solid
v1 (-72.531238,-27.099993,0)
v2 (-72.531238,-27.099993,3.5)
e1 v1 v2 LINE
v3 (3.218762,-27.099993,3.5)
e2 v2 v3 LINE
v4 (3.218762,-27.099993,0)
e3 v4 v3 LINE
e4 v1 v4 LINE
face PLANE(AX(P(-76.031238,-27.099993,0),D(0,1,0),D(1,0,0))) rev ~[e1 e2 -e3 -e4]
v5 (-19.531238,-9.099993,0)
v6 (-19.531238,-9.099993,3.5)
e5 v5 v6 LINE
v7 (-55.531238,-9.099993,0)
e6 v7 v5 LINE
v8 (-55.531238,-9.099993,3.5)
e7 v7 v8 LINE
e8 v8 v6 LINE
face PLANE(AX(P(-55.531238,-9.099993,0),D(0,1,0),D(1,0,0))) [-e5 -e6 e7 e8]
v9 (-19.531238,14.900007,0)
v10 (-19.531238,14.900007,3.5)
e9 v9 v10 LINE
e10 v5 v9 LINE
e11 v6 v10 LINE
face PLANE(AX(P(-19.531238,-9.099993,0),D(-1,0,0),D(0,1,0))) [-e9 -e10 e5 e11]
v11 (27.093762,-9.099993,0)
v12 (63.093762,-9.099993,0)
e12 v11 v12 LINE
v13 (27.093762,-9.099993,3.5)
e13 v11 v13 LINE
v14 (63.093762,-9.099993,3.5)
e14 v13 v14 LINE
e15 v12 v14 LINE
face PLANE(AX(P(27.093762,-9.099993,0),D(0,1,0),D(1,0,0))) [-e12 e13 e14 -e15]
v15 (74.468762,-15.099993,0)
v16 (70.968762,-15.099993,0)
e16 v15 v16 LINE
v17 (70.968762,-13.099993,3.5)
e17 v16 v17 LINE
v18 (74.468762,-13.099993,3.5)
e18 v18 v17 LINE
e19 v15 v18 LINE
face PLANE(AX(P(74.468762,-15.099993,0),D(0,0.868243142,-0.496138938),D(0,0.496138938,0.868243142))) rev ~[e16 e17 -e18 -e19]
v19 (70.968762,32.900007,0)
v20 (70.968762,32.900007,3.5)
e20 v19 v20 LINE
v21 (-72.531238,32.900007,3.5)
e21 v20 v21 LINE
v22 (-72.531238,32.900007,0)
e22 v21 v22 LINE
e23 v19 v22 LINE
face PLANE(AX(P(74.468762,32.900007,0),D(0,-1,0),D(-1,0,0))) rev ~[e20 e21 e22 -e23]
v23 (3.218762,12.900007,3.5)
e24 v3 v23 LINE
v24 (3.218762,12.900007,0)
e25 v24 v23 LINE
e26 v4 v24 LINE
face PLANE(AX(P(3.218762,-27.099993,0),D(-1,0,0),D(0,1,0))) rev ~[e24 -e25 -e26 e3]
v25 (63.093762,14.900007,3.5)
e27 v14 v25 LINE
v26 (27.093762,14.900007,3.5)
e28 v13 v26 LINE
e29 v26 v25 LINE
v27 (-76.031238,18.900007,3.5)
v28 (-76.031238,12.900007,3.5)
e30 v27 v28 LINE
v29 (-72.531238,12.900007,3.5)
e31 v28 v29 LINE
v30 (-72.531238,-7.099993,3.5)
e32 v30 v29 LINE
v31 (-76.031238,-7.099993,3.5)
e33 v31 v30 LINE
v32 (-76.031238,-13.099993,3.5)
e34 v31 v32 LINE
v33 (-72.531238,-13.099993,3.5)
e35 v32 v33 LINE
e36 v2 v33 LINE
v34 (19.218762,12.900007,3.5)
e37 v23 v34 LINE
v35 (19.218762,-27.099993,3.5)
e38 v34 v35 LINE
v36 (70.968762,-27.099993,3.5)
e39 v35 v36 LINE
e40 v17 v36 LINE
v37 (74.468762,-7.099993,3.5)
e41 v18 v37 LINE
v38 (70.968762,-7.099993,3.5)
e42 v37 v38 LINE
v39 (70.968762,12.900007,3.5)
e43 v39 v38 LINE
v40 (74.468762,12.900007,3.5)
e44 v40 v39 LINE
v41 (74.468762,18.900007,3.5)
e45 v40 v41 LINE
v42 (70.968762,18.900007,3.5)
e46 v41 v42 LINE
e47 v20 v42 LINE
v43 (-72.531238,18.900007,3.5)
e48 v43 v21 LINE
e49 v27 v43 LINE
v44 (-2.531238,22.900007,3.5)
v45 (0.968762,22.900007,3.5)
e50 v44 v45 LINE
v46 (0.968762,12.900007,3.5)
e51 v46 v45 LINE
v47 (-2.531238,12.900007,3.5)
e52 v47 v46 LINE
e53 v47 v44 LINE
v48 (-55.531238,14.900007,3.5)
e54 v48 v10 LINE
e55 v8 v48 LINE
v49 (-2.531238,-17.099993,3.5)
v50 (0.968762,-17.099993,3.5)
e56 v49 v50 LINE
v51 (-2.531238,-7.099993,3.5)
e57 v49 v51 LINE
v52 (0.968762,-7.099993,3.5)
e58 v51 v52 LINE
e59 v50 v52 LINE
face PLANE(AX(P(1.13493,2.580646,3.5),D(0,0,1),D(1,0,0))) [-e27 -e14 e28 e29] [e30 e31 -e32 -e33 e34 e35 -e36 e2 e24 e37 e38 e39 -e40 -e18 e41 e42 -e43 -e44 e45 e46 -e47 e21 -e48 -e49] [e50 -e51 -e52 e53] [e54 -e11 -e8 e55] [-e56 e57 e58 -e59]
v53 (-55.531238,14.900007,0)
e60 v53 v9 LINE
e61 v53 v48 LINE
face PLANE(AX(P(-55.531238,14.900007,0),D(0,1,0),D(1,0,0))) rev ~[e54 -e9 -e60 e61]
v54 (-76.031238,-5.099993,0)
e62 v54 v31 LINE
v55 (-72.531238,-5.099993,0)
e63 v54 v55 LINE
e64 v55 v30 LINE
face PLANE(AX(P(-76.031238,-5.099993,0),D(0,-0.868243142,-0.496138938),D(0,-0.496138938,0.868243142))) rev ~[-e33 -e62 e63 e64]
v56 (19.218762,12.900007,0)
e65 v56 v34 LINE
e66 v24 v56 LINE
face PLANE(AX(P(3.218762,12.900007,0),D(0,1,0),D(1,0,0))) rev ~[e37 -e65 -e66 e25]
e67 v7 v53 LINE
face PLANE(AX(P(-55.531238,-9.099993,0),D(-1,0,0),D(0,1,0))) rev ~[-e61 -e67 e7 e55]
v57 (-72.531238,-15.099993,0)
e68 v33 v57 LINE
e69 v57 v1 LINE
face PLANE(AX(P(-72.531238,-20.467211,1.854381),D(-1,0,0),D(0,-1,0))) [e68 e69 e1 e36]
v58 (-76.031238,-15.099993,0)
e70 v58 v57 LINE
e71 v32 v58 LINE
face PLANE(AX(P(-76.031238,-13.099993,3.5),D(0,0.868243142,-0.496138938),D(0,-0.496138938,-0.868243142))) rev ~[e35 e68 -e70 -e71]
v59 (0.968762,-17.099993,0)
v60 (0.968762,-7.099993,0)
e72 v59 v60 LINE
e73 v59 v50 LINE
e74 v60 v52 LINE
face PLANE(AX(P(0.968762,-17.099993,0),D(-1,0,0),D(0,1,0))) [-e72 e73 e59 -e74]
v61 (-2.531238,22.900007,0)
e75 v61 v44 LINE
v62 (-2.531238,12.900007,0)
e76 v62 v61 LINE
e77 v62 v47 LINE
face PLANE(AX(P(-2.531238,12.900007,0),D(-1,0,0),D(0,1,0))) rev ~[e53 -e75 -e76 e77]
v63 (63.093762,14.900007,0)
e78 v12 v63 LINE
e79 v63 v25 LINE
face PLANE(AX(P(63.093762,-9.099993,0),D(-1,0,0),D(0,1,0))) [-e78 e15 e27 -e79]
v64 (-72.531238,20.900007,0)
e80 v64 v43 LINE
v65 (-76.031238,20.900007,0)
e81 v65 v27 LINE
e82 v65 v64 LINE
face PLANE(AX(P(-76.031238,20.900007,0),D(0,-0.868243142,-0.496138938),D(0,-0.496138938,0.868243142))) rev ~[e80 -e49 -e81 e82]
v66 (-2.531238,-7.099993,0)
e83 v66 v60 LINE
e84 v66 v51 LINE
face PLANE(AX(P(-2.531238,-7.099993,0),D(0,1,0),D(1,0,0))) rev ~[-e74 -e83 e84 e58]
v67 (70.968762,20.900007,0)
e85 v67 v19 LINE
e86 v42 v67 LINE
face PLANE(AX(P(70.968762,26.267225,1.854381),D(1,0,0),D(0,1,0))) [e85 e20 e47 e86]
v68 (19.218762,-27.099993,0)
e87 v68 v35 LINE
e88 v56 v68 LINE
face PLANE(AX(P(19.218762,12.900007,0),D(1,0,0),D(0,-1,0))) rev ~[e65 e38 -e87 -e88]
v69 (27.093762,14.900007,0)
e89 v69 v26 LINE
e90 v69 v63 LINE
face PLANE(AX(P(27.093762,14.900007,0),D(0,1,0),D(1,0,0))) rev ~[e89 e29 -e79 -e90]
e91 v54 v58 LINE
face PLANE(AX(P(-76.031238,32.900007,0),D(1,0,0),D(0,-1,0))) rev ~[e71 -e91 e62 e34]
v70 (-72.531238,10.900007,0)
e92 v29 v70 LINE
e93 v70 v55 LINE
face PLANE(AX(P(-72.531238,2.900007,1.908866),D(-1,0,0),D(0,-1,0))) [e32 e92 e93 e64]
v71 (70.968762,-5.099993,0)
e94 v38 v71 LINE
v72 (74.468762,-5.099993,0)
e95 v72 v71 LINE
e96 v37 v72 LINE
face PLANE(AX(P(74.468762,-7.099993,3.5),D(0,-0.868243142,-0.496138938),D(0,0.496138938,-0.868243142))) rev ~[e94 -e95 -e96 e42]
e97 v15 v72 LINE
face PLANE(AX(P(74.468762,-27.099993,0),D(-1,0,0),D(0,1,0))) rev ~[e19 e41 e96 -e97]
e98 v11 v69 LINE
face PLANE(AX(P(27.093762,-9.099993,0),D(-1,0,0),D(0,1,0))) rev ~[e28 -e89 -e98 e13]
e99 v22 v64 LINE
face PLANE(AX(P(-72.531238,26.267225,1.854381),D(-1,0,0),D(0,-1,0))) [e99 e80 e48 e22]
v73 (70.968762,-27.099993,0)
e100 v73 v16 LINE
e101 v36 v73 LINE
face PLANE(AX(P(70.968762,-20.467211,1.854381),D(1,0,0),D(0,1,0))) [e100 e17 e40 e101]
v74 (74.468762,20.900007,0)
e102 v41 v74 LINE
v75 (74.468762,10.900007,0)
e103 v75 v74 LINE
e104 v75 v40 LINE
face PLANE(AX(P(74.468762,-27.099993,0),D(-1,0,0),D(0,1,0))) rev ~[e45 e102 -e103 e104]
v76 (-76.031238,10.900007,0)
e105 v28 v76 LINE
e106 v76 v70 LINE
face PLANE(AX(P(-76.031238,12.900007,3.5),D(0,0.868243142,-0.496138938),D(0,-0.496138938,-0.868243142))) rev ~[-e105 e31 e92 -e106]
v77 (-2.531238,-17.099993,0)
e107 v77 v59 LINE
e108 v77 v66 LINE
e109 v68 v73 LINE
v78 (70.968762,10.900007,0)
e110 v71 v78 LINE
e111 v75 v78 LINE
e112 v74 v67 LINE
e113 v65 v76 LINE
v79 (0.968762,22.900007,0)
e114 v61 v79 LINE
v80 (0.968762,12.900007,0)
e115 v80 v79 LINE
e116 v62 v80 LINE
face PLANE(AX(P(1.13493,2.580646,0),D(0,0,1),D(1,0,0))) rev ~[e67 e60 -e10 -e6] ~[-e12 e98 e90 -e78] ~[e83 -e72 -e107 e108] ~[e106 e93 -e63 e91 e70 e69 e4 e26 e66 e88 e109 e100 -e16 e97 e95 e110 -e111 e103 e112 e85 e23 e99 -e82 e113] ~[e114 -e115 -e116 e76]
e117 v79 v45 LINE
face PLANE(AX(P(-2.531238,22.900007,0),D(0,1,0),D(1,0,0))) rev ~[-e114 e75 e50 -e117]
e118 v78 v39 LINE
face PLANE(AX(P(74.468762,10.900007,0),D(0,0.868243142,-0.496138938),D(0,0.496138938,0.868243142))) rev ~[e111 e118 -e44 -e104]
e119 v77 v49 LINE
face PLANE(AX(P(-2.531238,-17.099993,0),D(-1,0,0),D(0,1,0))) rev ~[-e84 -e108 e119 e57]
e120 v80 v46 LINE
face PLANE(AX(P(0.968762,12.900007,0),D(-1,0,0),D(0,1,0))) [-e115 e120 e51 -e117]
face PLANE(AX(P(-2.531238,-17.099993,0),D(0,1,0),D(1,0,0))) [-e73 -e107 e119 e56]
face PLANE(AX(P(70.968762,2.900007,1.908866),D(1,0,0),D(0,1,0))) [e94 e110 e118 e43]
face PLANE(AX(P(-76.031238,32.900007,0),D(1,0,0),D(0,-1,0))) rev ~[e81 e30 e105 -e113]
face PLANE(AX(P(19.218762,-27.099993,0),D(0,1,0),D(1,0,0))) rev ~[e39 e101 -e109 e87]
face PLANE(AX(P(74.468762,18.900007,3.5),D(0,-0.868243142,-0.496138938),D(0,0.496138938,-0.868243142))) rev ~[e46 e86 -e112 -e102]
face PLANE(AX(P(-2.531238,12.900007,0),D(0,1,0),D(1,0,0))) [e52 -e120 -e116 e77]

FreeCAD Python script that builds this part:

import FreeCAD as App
import Part
import Sketcher

V = App.Vector


def add_polygon(sketch, points):
    """Adds a closed chain of lines whose ends are joined by coincident constraints."""
    first, n = sketch.GeometryCount, len(points)
    for a, b in zip(points, points[1:] + points[:1]):
        sketch.addGeometry(Part.LineSegment(App.Vector(*a, 0), App.Vector(*b, 0)), False)
    for i in range(n):
        sketch.addConstraint(Sketcher.Constraint("Coincident", first + i, 2, first + (i + 1) % n, 1))

doc = App.newDocument("Part")
params = doc.addObject("Spreadsheet::Sheet", "Params")
for row, (alias, value) in enumerate([
    ("sketch1_width", "16 mm"),
    ("sketch1_width2", "36 mm"),
    ("sketch1_height", "40 mm"),
    ("sketch1_height2", "60 mm"),
    ("sketch1_height3", "10 mm"),
    ("pad1_length", "3.5 mm"),
    ("sketch2_width", "12 mm"),
    ("sketch2_width2", "14 mm"),
    ("sketch2_width3", "16 mm"),
    ("sketch2_height", "3.5 mm"),
    ("pocket1_length", "3.5 mm"),
    ("sketch3_width", "14 mm"),
    ("sketch3_width2", "12 mm"),
    ("sketch3_width3", "20 mm"),
    ("sketch3_height", "3.5 mm"),
    ("pocket2_length", "3.5 mm"),
], start=1):
    params.set(f"A{row}", alias)
    params.set(f"B{row}", "=" + value)
    params.setAlias(f"B{row}", alias)

body = doc.addObject("PartDesign::Body", "Body")

sketch1 = body.newObject("Sketcher::SketchObject", "Sketch")
sketch1.AttachmentSupport = (doc.getObject("XY_Plane"), [""])
sketch1.MapMode = "FlatFace"
add_polygon(sketch1, [(19.2, 12.9), (19.2, -27.1), (74.5, -27.1), (74.5, 32.9), (-76, 32.9), (-76, -27.1), (3.2, -27.1), (3.2, 12.9)])
add_polygon(sketch1, [(1, -17.1), (-2.5, -17.1), (-2.5, -7.1), (1, -7.1)])
add_polygon(sketch1, [(-19.5, -9.1), (-55.5, -9.1), (-55.5, 14.9), (-19.5, 14.9)])
add_polygon(sketch1, [(1, 12.9), (-2.5, 12.9), (-2.5, 22.9), (1, 22.9)])
add_polygon(sketch1, [(63.1, -9.1), (27.1, -9.1), (27.1, 14.9), (63.1, 14.9)])
sketch1.addConstraint(Sketcher.Constraint("Vertical", 0))
sketch1.addConstraint(Sketcher.Constraint("Horizontal", 1))
sketch1.addConstraint(Sketcher.Constraint("Vertical", 2))
sketch1.addConstraint(Sketcher.Constraint("Horizontal", 3))
sketch1.addConstraint(Sketcher.Constraint("Vertical", 4))
sketch1.addConstraint(Sketcher.Constraint("Horizontal", 5))
sketch1.addConstraint(Sketcher.Constraint("Vertical", 6))
sketch1.addConstraint(Sketcher.Constraint("Horizontal", 7))
sketch1.addConstraint(Sketcher.Constraint("Horizontal", 8))
sketch1.addConstraint(Sketcher.Constraint("Vertical", 9))
sketch1.addConstraint(Sketcher.Constraint("Horizontal", 10))
sketch1.addConstraint(Sketcher.Constraint("Vertical", 11))
sketch1.addConstraint(Sketcher.Constraint("Horizontal", 12))
sketch1.addConstraint(Sketcher.Constraint("Vertical", 13))
sketch1.addConstraint(Sketcher.Constraint("Horizontal", 14))
sketch1.addConstraint(Sketcher.Constraint("Vertical", 15))
sketch1.addConstraint(Sketcher.Constraint("Horizontal", 16))
sketch1.addConstraint(Sketcher.Constraint("Vertical", 17))
sketch1.addConstraint(Sketcher.Constraint("Horizontal", 18))
sketch1.addConstraint(Sketcher.Constraint("Vertical", 19))
sketch1.addConstraint(Sketcher.Constraint("Horizontal", 20))
sketch1.addConstraint(Sketcher.Constraint("Vertical", 21))
sketch1.addConstraint(Sketcher.Constraint("Horizontal", 22))
sketch1.addConstraint(Sketcher.Constraint("Vertical", 23))
sketch1.addConstraint(Sketcher.Constraint("Horizontal", 1, 2, 4, 2))
sketch1.addConstraint(Sketcher.Constraint("Horizontal", 7, 2, 16, 2))
sketch1.addConstraint(Sketcher.Constraint("Horizontal", 15, 2, 20, 2))
sketch1.addConstraint(Sketcher.Constraint("Horizontal", 14, 2, 21, 2))
sketch1.addConstraint(Sketcher.Constraint("Vertical", 9, 2, 16, 2))
sketch1.addConstraint(Sketcher.Constraint("Vertical", 11, 2, 18, 2))
sketch1.addConstraint(Sketcher.Constraint("Equal", 14, 20))
sketch1.addConstraint(Sketcher.Constraint("Equal", 11, 17))
sketch1.addConstraint(Sketcher.Constraint("DistanceX", 7, 1, 7, 2, 16.0))
sketch1.addConstraint(Sketcher.Constraint("DistanceX", 12, 2, 12, 1, 36.0))
sketch1.addConstraint(Sketcher.Constraint("DistanceY", 0, 2, 0, 1, 40.0))
sketch1.addConstraint(Sketcher.Constraint("DistanceY", 2, 1, 2, 2, 60.0))
sketch1.addConstraint(Sketcher.Constraint("DistanceY", 9, 1, 9, 2, 10.0))
sketch1.addConstraint(Sketcher.Constraint("DistanceY", 13, 1, 13, 2, 24.0))
sketch1.addConstraint(Sketcher.Constraint("DistanceX", 3, 2, 3, 1, 150.5))
sketch1.addConstraint(Sketcher.Constraint("DistanceX", 8, 2, 8, 1, 3.5))
sketch1.addConstraint(Sketcher.Constraint("DistanceY", 5, 2, 8, 2, 10.0))
sketch1.addConstraint(Sketcher.Constraint("DistanceY", 4, 2, 12, 2, 18.0))
sketch1.addConstraint(Sketcher.Constraint("DistanceX", 12, 2, 9, 2, 53.0))
sketch1.addConstraint(Sketcher.Constraint("DistanceX", 1, 1, 1, 2, 55.25))
sketch1.addConstraint(Sketcher.Constraint("DistanceX", 4, 2, 8, 2, 73.5))
sketch1.addConstraint(Sketcher.Constraint("DistanceX", 0, 2, 20, 2, 7.875))
sketch1.addConstraint(Sketcher.Constraint("DistanceX", -1, 1, 1, 2, 74.468762))
sketch1.addConstraint(Sketcher.Constraint("DistanceY", 0, 2, -1, 1, 27.099993))
sketch1.setExpression("Constraints[56]", "Params.sketch1_width")
sketch1.setExpression("Constraints[57]", "Params.sketch1_width2")
sketch1.setExpression("Constraints[58]", "Params.sketch1_height")
sketch1.setExpression("Constraints[59]", "Params.sketch1_height2")
sketch1.setExpression("Constraints[60]", "Params.sketch1_height3")
pad1 = body.newObject("PartDesign::Pad", "Pad")
pad1.Profile = sketch1
pad1.setExpression("Length", "Params.pad1_length")

sketch2 = body.newObject("Sketcher::SketchObject", "Sketch001")
sketch2.AttachmentSupport = (doc.getObject("YZ_Plane"), [""])
sketch2.MapMode = "FlatFace"
sketch2.AttachmentOffset = App.Placement(V(0, 0, 74.468762), App.Rotation())
add_polygon(sketch2, [(-27.1, 3.5), (-27.1, 0), (-15.1, 0), (-13.1, 3.5)])
add_polygon(sketch2, [(-7.1, 3.5), (-5.1, 0), (10.9, 0), (12.9, 3.5)])
add_polygon(sketch2, [(18.9, 3.5), (20.9, 0), (32.9, 0), (32.9, 3.5)])
sketch2.addConstraint(Sketcher.Constraint("Vertical", 0))
sketch2.addConstraint(Sketcher.Constraint("Horizontal", 1))
sketch2.addConstraint(Sketcher.Constraint("Horizontal", 3))
sketch2.addConstraint(Sketcher.Constraint("Horizontal", 5))
sketch2.addConstraint(Sketcher.Constraint("Horizontal", 7))
sketch2.addConstraint(Sketcher.Constraint("Horizontal", 9))
sketch2.addConstraint(Sketcher.Constraint("Vertical", 10))
sketch2.addConstraint(Sketcher.Constraint("Horizontal", 11))
sketch2.addConstraint(Sketcher.Constraint("PointOnObject", 0, 2, -1))
sketch2.addConstraint(Sketcher.Constraint("PointOnObject", 4, 2, -1))
sketch2.addConstraint(Sketcher.Constraint("PointOnObject", 8, 2, -1))
sketch2.addConstraint(Sketcher.Constraint("Parallel", 2, 6))
sketch2.addConstraint(Sketcher.Constraint("Parallel", 4, 8))
sketch2.addConstraint(Sketcher.Constraint("Horizontal", 3, 2, 6, 2))
sketch2.addConstraint(Sketcher.Constraint("Horizontal", 7, 2, 10, 2))
sketch2.addConstraint(Sketcher.Constraint("Equal", 1, 9))
sketch2.addConstraint(Sketcher.Constraint("Equal", 3, 11))
sketch2.addConstraint(Sketcher.Constraint("DistanceX", 1, 1, 1, 2, 12.0))
sketch2.addConstraint(Sketcher.Constraint("DistanceX", 3, 2, 3, 1, 14.0))
sketch2.addConstraint(Sketcher.Constraint("DistanceX", 5, 1, 5, 2, 16.0))
sketch2.addConstraint(Sketcher.Constraint("DistanceY", 0, 2, 0, 1, 3.5))
sketch2.addConstraint(Sketcher.Constraint("DistanceX", 2, 2, 4, 2, 8.0))
sketch2.addConstraint(Sketcher.Constraint("DistanceX", 6, 2, 8, 2, 8.0))
sketch2.addConstraint(Sketcher.Constraint("DistanceX", 0, 2, -1, 1, 27.099993))
sketch2.setExpression("Constraints[29]", "Params.sketch2_width")
sketch2.setExpression("Constraints[30]", "Params.sketch2_width2")
sketch2.setExpression("Constraints[31]", "Params.sketch2_width3")
sketch2.setExpression("Constraints[32]", "Params.sketch2_height")
pocket1 = body.newObject("PartDesign::Pocket", "Pocket")
pocket1.Profile = sketch2
pocket1.setExpression("Length", "Params.pocket1_length")

sketch3 = body.newObject("Sketcher::SketchObject", "Sketch002")
sketch3.AttachmentSupport = (doc.getObject("YZ_Plane"), [""])
sketch3.MapMode = "FlatFace"
sketch3.AttachmentOffset = App.Placement(V(0, 0, -76.031238), App.Rotation())
add_polygon(sketch3, [(-27.1, 3.5), (-13.1, 3.5), (-15.1, 0), (-27.1, 0)])
add_polygon(sketch3, [(-7.1, 3.5), (12.9, 3.5), (10.9, 0), (-5.1, 0)])
add_polygon(sketch3, [(18.9, 3.5), (32.9, 3.5), (32.9, 0), (20.9, 0)])
sketch3.addConstraint(Sketcher.Constraint("Horizontal", 0))
sketch3.addConstraint(Sketcher.Constraint("Horizontal", 2))
sketch3.addConstraint(Sketcher.Constraint("Vertical", 3))
sketch3.addConstraint(Sketcher.Constraint("Horizontal", 4))
sketch3.addConstraint(Sketcher.Constraint("Horizontal", 6))
sketch3.addConstraint(Sketcher.Constraint("Horizontal", 8))
sketch3.addConstraint(Sketcher.Constraint("Vertical", 9))
sketch3.addConstraint(Sketcher.Constraint("Horizontal", 10))
sketch3.addConstraint(Sketcher.Constraint("PointOnObject", 1, 2, -1))
sketch3.addConstraint(Sketcher.Constraint("PointOnObject", 5, 2, -1))
sketch3.addConstraint(Sketcher.Constraint("PointOnObject", 9, 2, -1))
sketch3.addConstraint(Sketcher.Constraint("Parallel", 1, 5))
sketch3.addConstraint(Sketcher.Constraint("Parallel", 7, 11))
sketch3.addConstraint(Sketcher.Constraint("Horizontal", 3, 2, 4, 2))
sketch3.addConstraint(Sketcher.Constraint("Horizontal", 7, 2, 8, 2))
sketch3.addConstraint(Sketcher.Constraint("Equal", 0, 8))
sketch3.addConstraint(Sketcher.Constraint("Equal", 2, 10))
sketch3.addConstraint(Sketcher.Constraint("DistanceX", 0, 1, 0, 2, 14.0))
sketch3.addConstraint(Sketcher.Constraint("DistanceX", 2, 2, 2, 1, 12.0))
sketch3.addConstraint(Sketcher.Constraint("DistanceX", 4, 1, 4, 2, 20.0))
sketch3.addConstraint(Sketcher.Constraint("DistanceY", 3, 1, 3, 2, 3.5))
sketch3.addConstraint(Sketcher.Constraint("DistanceX", 0, 2, 4, 2, 26.0))
sketch3.addConstraint(Sketcher.Constraint("DistanceX", 4, 2, 8, 2, 20.0))
sketch3.addConstraint(Sketcher.Constraint("DistanceX", 0, 2, -1, 1, 13.099993))
sketch3.setExpression("Constraints[29]", "Params.sketch3_width")
sketch3.setExpression("Constraints[30]", "Params.sketch3_width2")
sketch3.setExpression("Constraints[31]", "Params.sketch3_width3")
sketch3.setExpression("Constraints[32]", "Params.sketch3_height")
pocket2 = body.newObject("PartDesign::Pocket", "Pocket001")
pocket2.Profile = sketch3
pocket2.setExpression("Length", "Params.pocket2_length")
pocket2.Reversed = True

doc.recompute()
